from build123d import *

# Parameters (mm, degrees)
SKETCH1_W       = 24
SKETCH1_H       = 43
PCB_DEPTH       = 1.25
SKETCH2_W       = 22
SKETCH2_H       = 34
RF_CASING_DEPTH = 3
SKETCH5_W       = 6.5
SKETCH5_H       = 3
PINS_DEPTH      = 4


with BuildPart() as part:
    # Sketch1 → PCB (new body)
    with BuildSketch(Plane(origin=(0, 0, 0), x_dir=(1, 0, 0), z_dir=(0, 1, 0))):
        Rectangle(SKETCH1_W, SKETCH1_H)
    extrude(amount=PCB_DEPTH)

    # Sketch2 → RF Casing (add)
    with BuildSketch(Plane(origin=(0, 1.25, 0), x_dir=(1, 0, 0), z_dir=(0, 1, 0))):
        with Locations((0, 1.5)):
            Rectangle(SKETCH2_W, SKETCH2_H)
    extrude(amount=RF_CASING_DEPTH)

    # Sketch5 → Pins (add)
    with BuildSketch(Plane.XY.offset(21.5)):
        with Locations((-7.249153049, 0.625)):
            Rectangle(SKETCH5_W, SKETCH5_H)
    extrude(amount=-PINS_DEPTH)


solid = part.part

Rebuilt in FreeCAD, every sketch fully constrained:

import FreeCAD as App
import Part
import Sketcher

V = App.Vector

doc = App.newDocument("Part")
body = doc.addObject("PartDesign::Body", "Body")

# Sketch on XZ plane
sketch1 = body.newObject("Sketcher::SketchObject", "Sketch")
sketch1.AttachmentSupport = (doc.getObject("XZ_Plane"), [""])
sketch1.MapMode = "FlatFace"
sketch1.addGeometry(Part.LineSegment(V(-12, -22, 0), V(-12, 22, 0)), False)
sketch1.addGeometry(Part.LineSegment(V(-12, 22, 0), V(12, 22, 0)), False)
sketch1.addGeometry(Part.LineSegment(V(12, 22, 0), V(12, -22, 0)), False)
sketch1.addGeometry(Part.LineSegment(V(12, -22, 0), V(-12, -22, 0)), False)
sketch1.addConstraint(Sketcher.Constraint("Coincident", 0, 2, 1, 1))
sketch1.addConstraint(Sketcher.Constraint("Coincident", 1, 2, 2, 1))
sketch1.addConstraint(Sketcher.Constraint("Coincident", 2, 2, 3, 1))
sketch1.addConstraint(Sketcher.Constraint("Coincident", 3, 2, 0, 1))
sketch1.addConstraint(Sketcher.Constraint("Vertical", 0))
sketch1.addConstraint(Sketcher.Constraint("Horizontal", 1))
sketch1.addConstraint(Sketcher.Constraint("Vertical", 2))
sketch1.addConstraint(Sketcher.Constraint("Horizontal", 3))
sketch1.addConstraint(Sketcher.Constraint("Symmetric", 0, 2, 2, 2, -1, 1))
sketch1.addConstraint(Sketcher.Constraint("DistanceX", 1, 1, 1, 2, 24.0))
sketch1.addConstraint(Sketcher.Constraint("DistanceY", 0, 1, 0, 2, 43.0))
pad1 = body.newObject("PartDesign::Pad", "Pad")
pad1.Profile = sketch1
pad1.Length = 1.25
pad1.Reversed = True

# Sketch on XZ plane
sketch2 = body.newObject("Sketcher::SketchObject", "Sketch001")
sketch2.AttachmentSupport = (doc.getObject("XZ_Plane"), [""])
sketch2.MapMode = "FlatFace"
sketch2.AttachmentOffset = App.Placement(V(0, 0, -1.25), App.Rotation())
sketch2.addGeometry(Part.LineSegment(V(-11, -18, 0), V(-11, 16, 0)), False)
sketch2.addGeometry(Part.LineSegment(V(-11, 16, 0), V(11, 16, 0)), False)
sketch2.addGeometry(Part.LineSegment(V(11, 16, 0), V(11, -18, 0)), False)
sketch2.addGeometry(Part.LineSegment(V(11, -18, 0), V(-11, -18, 0)), False)
sketch2.addConstraint(Sketcher.Constraint("Coincident", 0, 2, 1, 1))
sketch2.addConstraint(Sketcher.Constraint("Coincident", 1, 2, 2, 1))
sketch2.addConstraint(Sketcher.Constraint("Coincident", 2, 2, 3, 1))
sketch2.addConstraint(Sketcher.Constraint("Coincident", 3, 2, 0, 1))
sketch2.addConstraint(Sketcher.Constraint("Vertical", 0))
sketch2.addConstraint(Sketcher.Constraint("Horizontal", 1))
sketch2.addConstraint(Sketcher.Constraint("Vertical", 2))
sketch2.addConstraint(Sketcher.Constraint("Horizontal", 3))
sketch2.addConstraint(Sketcher.Constraint("DistanceX", 1, 1, 1, 2, 22.0))
sketch2.addConstraint(Sketcher.Constraint("DistanceY", 0, 1, 0, 2, 34.0))
sketch2.addConstraint(Sketcher.Constraint("DistanceX", 0, 2, -1, 1, 11.0))
sketch2.addConstraint(Sketcher.Constraint("DistanceY", -1, 1, 0, 2, 15.5))
pad2 = body.newObject("PartDesign::Pad", "Pad001")
pad2.Profile = sketch2
pad2.Length = 3
pad2.Reversed = True

# Sketch on XY plane
sketch3 = body.newObject("Sketcher::SketchObject", "Sketch002")
sketch3.AttachmentSupport = (doc.getObject("XY_Plane"), [""])
sketch3.MapMode = "FlatFace"
sketch3.AttachmentOffset = App.Placement(V(0, 0, 21.5), App.Rotation())
sketch3.addGeometry(Part.LineSegment(V(-10.5, 2.1, 0), V(-10.5, -0.9, 0)), False)
sketch3.addGeometry(Part.LineSegment(V(-10.5, -0.9, 0), V(-4, -0.9, 0)), False)
sketch3.addGeometry(Part.LineSegment(V(-4, -0.9, 0), V(-4, 2.1, 0)), False)
sketch3.addGeometry(Part.LineSegment(V(-4, 2.1, 0), V(-10.5, 2.1, 0)), False)
sketch3.addConstraint(Sketcher.Constraint("Coincident", 0, 2, 1, 1))
sketch3.addConstraint(Sketcher.Constraint("Coincident", 1, 2, 2, 1))
sketch3.addConstraint(Sketcher.Constraint("Coincident", 2, 2, 3, 1))
sketch3.addConstraint(Sketcher.Constraint("Coincident", 3, 2, 0, 1))
sketch3.addConstraint(Sketcher.Constraint("Vertical", 0))
sketch3.addConstraint(Sketcher.Constraint("Horizontal", 1))
sketch3.addConstraint(Sketcher.Constraint("Vertical", 2))
sketch3.addConstraint(Sketcher.Constraint("Horizontal", 3))
sketch3.addConstraint(Sketcher.Constraint("DistanceY", 0, 2, 0, 1, 3.0))
sketch3.addConstraint(Sketcher.Constraint("DistanceX", 1, 1, 1, 2, 6.5))
sketch3.addConstraint(Sketcher.Constraint("DistanceY", 0, 2, -1, 1, 0.875))
sketch3.addConstraint(Sketcher.Constraint("DistanceX", 0, 2, -1, 1, 10.499153))
pad3 = body.newObject("PartDesign::Pad", "Pad002")
pad3.Profile = sketch3
pad3.Length = 4
pad3.Reversed = True

doc.recompute()
